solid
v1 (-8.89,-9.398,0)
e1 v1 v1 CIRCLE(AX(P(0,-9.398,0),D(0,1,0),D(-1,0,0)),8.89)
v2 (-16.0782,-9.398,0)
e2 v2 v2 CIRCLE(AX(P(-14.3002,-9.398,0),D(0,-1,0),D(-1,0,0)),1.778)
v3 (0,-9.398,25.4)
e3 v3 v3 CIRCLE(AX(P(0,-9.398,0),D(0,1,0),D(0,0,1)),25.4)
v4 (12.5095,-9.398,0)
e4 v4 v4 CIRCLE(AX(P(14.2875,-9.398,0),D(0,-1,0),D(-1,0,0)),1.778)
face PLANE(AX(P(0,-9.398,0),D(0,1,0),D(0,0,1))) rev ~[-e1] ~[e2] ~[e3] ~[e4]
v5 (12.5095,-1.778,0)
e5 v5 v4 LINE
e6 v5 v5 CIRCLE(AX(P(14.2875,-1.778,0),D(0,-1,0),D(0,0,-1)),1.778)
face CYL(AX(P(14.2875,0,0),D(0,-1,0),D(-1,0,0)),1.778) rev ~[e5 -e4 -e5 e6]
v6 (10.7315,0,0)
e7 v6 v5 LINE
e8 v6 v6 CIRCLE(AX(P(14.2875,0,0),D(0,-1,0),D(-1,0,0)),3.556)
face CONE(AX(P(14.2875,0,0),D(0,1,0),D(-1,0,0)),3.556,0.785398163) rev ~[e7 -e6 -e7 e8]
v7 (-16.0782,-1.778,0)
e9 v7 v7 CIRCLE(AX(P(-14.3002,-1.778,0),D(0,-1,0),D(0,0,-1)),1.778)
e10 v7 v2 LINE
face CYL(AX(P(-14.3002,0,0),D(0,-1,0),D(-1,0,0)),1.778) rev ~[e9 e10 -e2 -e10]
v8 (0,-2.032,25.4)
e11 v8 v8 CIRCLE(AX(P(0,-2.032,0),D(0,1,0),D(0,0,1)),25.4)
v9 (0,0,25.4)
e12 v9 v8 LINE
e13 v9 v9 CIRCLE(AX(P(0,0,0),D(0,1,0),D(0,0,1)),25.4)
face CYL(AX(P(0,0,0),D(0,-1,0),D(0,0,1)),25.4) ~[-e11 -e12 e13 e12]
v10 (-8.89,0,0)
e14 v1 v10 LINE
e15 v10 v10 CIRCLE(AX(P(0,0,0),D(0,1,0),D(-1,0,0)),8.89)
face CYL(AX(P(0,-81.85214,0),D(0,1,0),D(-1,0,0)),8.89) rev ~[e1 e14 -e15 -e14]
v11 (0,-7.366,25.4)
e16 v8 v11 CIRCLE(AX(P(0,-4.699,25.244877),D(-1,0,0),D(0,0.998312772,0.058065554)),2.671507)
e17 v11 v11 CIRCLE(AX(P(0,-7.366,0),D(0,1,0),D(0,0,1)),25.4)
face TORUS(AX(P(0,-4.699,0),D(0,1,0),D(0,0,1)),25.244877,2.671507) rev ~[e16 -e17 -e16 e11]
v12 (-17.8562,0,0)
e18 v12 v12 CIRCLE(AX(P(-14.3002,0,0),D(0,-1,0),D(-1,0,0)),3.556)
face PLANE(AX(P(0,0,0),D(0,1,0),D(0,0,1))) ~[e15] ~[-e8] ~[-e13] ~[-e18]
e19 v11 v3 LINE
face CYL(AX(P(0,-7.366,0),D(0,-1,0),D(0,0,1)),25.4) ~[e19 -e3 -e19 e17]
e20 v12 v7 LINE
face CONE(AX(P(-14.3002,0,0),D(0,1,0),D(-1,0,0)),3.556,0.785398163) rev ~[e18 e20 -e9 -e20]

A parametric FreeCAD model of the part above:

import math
import FreeCAD as App
import Part
import Sketcher

V = App.Vector
Q = App.Units.Quantity

doc = App.newDocument("Part")
body = doc.addObject("PartDesign::Body", "Body")

sketch1 = body.newObject("Sketcher::SketchObject", "Sketch")
sketch1.AttachmentSupport = (doc.getObject("YZ_Plane"), [""])
sketch1.MapMode = "FlatFace"
sketch1.addGeometry(Part.ArcOfCircle(Part.Circle(V(-4.7, 25.2, 0), V(0, 0, 1), 2.7), math.radians(177), math.radians(363)), False)
sketch1.addGeometry(Part.LineSegment(V(-7.4, 25.4, 0), V(-9.4, 25.4, 0)), False)
sketch1.addGeometry(Part.LineSegment(V(-9.4, 25.4, 0), V(-9.4, 0, 0)), False)
sketch1.addGeometry(Part.LineSegment(V(-9.4, 0, 0), V(0, 0, 0)), False)
sketch1.addGeometry(Part.LineSegment(V(0, 0, 0), V(0, 25.4, 0)), False)
sketch1.addGeometry(Part.LineSegment(V(0, 25.4, 0), V(-2, 25.4, 0)), False)
sketch1.addConstraint(Sketcher.Constraint("Coincident", 0, 1, 1, 1))
sketch1.addConstraint(Sketcher.Constraint("Coincident", 1, 2, 2, 1))
sketch1.addConstraint(Sketcher.Constraint("Coincident", 2, 2, 3, 1))
sketch1.addConstraint(Sketcher.Constraint("Coincident", 3, 2, 4, 1))
sketch1.addConstraint(Sketcher.Constraint("Coincident", 4, 2, 5, 1))
sketch1.addConstraint(Sketcher.Constraint("Coincident", 5, 2, 0, 2))
sketch1.addConstraint(Sketcher.Constraint("Horizontal", 1))
sketch1.addConstraint(Sketcher.Constraint("Vertical", 2))
sketch1.addConstraint(Sketcher.Constraint("Horizontal", 3))
sketch1.addConstraint(Sketcher.Constraint("Vertical", 4))
sketch1.addConstraint(Sketcher.Constraint("Horizontal", 5))
sketch1.addConstraint(Sketcher.Constraint("Coincident", 3, 2, -1, 1))
sketch1.addConstraint(Sketcher.Constraint("Horizontal", 1, 2, 4, 2))
sketch1.addConstraint(Sketcher.Constraint("Equal", 1, 5))
sketch1.addConstraint(Sketcher.Constraint("DistanceY", 2, 2, 2, 1, Q("1 in")))
sketch1.addConstraint(Sketcher.Constraint("DistanceX", 1, 2, 1, 1, Q("0.08 in")))
sketch1.addConstraint(Sketcher.Constraint("DistanceX", 3, 1, 3, 2, Q("0.37 in")))
sketch1.addConstraint(Sketcher.Constraint("Radius", 0, 2.671507))
revolution = body.newObject("PartDesign::Revolution", "Revolution")
revolution.Profile = sketch1
revolution.ReferenceAxis = (sketch1, ["H_Axis"])
revolution.Angle = 360

sketch2 = body.newObject("Sketcher::SketchObject", "Sketch001")
sketch2.AttachmentSupport = (doc.getObject("XZ_Plane"), [""])
sketch2.MapMode = "FlatFace"
sketch2.addGeometry(Part.Circle(V(14.3, 0, 0), V(0, 0, 1), 1.8), False)
sketch2.addGeometry(Part.Circle(V(-14.3, 0, 0), V(0, 0, 1), 1.8), False)
sketch2.addConstraint(Sketcher.Constraint("Equal", 0, 1))
sketch2.addConstraint(Sketcher.Constraint("PointOnObject", 0, 3, -1))
sketch2.addConstraint(Sketcher.Constraint("PointOnObject", 1, 3, -1))
sketch2.addConstraint(Sketcher.Constraint("Diameter", 0, Q("0.14 in")))
sketch2.addConstraint(Sketcher.Constraint("DistanceX", -1, 1, 0, 3, Q("0.5625 in")))
sketch2.addConstraint(Sketcher.Constraint("DistanceX", 1, 3, -1, 1, Q("0.563 in")))
doc.recompute()
hole = body.newObject("PartDesign::Hole", "Hole")
hole.Profile = sketch2
hole.ThreadType = "None"
hole.Diameter = Q("0.14 in")
hole.DepthType = "ThroughAll"
hole.HoleCutType = "Countersink"
hole.HoleCutDiameter = Q("0.28 in")
hole.HoleCutCountersinkAngle = 90
hole.Reversed = True

sketch3 = body.newObject("Sketcher::SketchObject", "Sketch002")
sketch3.AttachmentSupport = (doc.getObject("XZ_Plane"), [""])
sketch3.MapMode = "FlatFace"
sketch3.AttachmentOffset = App.Placement(V(0, 0, 0.37 * 25.4), App.Rotation())
sketch3.addGeometry(Part.Circle(V(0, 0, 0), V(0, 0, 1), 9), False)
sketch3.addConstraint(Sketcher.Constraint("Coincident", 0, 3, -1, 1))
sketch3.addConstraint(Sketcher.Constraint("Diameter", 0, Q("0.7 in")))
doc.recompute()
hole2 = body.newObject("PartDesign::Hole", "Hole001")
hole2.Profile = sketch3
hole2.ThreadType = "None"
hole2.Diameter = Q("0.7 in")
hole2.DepthType = "ThroughAll"

doc.recompute()
